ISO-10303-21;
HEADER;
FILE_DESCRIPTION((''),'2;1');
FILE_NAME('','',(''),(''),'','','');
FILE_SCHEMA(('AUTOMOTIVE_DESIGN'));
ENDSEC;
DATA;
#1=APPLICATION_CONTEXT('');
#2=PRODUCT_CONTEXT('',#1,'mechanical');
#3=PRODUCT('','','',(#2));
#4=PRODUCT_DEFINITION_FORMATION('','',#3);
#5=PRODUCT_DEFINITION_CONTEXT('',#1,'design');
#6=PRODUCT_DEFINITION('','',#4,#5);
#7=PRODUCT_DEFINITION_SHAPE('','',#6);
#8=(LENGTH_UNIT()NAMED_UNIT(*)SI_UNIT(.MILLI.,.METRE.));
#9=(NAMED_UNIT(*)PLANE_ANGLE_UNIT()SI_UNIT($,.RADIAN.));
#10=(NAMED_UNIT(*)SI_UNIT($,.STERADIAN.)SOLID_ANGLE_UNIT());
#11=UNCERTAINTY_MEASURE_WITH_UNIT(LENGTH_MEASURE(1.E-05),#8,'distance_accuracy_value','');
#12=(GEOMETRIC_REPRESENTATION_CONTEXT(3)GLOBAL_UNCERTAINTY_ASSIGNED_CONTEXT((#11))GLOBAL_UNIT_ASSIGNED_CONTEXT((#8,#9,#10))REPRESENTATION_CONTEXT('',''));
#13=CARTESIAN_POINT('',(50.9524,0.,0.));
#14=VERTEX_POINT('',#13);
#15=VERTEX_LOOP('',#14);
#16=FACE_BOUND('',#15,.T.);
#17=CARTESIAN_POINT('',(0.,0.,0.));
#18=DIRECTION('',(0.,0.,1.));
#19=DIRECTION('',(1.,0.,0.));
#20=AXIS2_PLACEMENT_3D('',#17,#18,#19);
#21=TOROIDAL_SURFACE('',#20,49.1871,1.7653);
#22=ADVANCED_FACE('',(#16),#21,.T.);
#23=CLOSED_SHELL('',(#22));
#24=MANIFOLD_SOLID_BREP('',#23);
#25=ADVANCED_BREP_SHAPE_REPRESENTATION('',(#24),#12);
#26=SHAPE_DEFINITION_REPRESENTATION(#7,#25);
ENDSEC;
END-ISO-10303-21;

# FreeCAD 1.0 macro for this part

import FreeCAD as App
import Part
import Sketcher
from FreeCAD import Vector
Q = App.Units.Quantity

doc = App.newDocument("Part")
body = doc.addObject("PartDesign::Body", "Body")

# Sketch on XZ plane
sketch1 = body.newObject("Sketcher::SketchObject", "Sketch")
sketch1.AttachmentSupport = (doc.getObject("XZ_Plane"), [""])
sketch1.MapMode = "FlatFace"
sketch1.addGeometry(Part.Circle(Vector(-49.2, 0, 0), Vector(0, 0, 1), 1.8), False)
sketch1.addConstraint([
    Sketcher.Constraint("PointOnObject", 0, 3, -1),
    Sketcher.Constraint("Diameter", 0, Q("0.139 in")),
    Sketcher.Constraint("DistanceX", 0, 3, -1, 1, Q("1.9365 in")),
])
revolution = body.newObject("PartDesign::Revolution", "Revolution")
revolution.Profile = sketch1
revolution.ReferenceAxis = (sketch1, ["V_Axis"])
revolution.Angle = 360

doc.recompute()
